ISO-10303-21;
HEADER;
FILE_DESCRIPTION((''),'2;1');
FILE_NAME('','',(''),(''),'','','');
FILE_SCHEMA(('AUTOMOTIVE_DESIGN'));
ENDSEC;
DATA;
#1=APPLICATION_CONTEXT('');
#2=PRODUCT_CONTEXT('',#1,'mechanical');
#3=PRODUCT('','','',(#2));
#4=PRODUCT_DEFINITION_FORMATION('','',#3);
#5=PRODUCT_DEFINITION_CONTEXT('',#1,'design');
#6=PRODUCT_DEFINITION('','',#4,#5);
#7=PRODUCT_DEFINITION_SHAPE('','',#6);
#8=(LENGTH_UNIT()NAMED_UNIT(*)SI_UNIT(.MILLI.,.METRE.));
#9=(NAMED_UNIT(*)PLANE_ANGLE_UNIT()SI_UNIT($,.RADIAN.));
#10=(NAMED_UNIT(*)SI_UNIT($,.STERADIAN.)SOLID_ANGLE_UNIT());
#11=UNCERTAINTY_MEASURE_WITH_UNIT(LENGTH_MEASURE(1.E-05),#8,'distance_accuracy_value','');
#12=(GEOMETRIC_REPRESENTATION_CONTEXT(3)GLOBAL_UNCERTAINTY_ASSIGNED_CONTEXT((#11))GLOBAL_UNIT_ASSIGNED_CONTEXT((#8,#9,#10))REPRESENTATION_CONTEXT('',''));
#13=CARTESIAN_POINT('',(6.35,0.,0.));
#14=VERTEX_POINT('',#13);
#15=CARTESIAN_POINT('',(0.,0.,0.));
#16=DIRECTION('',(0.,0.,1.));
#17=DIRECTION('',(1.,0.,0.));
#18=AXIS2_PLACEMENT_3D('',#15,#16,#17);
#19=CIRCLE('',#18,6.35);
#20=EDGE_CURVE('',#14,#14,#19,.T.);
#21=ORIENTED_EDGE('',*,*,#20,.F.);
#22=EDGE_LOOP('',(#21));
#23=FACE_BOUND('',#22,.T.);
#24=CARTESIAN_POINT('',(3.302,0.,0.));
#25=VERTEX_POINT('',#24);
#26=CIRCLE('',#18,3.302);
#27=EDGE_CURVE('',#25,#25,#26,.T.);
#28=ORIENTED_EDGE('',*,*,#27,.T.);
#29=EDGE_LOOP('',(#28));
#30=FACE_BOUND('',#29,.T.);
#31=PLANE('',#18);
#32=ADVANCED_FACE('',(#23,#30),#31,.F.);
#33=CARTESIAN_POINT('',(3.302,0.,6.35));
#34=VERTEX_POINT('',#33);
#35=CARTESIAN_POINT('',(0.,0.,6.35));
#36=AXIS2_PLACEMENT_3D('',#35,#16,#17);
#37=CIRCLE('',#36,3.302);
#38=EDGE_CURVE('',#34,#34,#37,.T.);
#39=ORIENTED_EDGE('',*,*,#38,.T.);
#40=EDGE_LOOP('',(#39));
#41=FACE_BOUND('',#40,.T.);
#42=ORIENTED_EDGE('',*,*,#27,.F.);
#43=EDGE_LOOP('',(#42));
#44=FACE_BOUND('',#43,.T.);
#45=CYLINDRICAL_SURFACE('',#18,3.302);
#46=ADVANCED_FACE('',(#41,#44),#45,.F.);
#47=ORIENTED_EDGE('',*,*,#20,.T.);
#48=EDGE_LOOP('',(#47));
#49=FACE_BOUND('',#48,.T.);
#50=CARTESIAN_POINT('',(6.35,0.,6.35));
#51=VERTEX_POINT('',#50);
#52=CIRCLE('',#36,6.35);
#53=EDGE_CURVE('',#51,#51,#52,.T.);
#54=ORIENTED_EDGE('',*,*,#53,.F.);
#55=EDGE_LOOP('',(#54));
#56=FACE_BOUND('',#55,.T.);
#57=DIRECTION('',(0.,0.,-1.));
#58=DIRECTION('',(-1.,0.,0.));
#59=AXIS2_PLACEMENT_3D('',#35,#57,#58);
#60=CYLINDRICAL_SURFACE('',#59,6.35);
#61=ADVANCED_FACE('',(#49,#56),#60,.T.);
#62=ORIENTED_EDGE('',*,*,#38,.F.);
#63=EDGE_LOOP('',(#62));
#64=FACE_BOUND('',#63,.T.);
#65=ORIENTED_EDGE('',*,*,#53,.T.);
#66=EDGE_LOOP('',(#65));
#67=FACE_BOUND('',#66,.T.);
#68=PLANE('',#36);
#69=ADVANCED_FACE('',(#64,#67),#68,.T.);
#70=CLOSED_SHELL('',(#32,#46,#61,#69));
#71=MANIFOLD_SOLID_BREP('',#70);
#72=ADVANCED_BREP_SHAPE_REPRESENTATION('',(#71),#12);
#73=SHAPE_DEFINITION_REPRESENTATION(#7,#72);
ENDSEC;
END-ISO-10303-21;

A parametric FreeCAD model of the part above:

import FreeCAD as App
import Part
import Sketcher
Q = App.Units.Quantity

doc = App.newDocument("Part")
body = doc.addObject("PartDesign::Body", "Body")

# Sketch on XY plane
sketch1 = body.newObject("Sketcher::SketchObject", "Sketch")
sketch1.AttachmentSupport = (doc.getObject("XY_Plane"), [""])
sketch1.MapMode = "FlatFace"
sketch1.addGeometry(Part.Circle(App.Vector(0, 0, 0), App.Vector(0, 0, 1), 6), False)
sketch1.addConstraint(Sketcher.Constraint("Coincident", 0, 3, -1, 1))
sketch1.addConstraint(Sketcher.Constraint("Diameter", 0, Q("0.5 in")))
pad1 = body.newObject("PartDesign::Pad", "Pad")
pad1.Profile = sketch1
pad1.Length = Q("0.25 in")

# Sketch on XY plane
sketch2 = body.newObject("Sketcher::SketchObject", "Sketch001")
sketch2.AttachmentSupport = (doc.getObject("XY_Plane"), [""])
sketch2.MapMode = "FlatFace"
sketch2.AttachmentOffset = App.Placement(App.Vector(0, 0, 0.25 * 25.4), App.Rotation())
sketch2.addGeometry(Part.Circle(App.Vector(0, 0, 0), App.Vector(0, 0, 1), 3.3), False)
sketch2.addConstraint(Sketcher.Constraint("Coincident", 0, 3, -1, 1))
sketch2.addConstraint(Sketcher.Constraint("Diameter", 0, Q("0.26 in")))
pocket1 = body.newObject("PartDesign::Pocket", "Pocket")
pocket1.Profile = sketch2
pocket1.Type = "ThroughAll"

doc.recompute()
